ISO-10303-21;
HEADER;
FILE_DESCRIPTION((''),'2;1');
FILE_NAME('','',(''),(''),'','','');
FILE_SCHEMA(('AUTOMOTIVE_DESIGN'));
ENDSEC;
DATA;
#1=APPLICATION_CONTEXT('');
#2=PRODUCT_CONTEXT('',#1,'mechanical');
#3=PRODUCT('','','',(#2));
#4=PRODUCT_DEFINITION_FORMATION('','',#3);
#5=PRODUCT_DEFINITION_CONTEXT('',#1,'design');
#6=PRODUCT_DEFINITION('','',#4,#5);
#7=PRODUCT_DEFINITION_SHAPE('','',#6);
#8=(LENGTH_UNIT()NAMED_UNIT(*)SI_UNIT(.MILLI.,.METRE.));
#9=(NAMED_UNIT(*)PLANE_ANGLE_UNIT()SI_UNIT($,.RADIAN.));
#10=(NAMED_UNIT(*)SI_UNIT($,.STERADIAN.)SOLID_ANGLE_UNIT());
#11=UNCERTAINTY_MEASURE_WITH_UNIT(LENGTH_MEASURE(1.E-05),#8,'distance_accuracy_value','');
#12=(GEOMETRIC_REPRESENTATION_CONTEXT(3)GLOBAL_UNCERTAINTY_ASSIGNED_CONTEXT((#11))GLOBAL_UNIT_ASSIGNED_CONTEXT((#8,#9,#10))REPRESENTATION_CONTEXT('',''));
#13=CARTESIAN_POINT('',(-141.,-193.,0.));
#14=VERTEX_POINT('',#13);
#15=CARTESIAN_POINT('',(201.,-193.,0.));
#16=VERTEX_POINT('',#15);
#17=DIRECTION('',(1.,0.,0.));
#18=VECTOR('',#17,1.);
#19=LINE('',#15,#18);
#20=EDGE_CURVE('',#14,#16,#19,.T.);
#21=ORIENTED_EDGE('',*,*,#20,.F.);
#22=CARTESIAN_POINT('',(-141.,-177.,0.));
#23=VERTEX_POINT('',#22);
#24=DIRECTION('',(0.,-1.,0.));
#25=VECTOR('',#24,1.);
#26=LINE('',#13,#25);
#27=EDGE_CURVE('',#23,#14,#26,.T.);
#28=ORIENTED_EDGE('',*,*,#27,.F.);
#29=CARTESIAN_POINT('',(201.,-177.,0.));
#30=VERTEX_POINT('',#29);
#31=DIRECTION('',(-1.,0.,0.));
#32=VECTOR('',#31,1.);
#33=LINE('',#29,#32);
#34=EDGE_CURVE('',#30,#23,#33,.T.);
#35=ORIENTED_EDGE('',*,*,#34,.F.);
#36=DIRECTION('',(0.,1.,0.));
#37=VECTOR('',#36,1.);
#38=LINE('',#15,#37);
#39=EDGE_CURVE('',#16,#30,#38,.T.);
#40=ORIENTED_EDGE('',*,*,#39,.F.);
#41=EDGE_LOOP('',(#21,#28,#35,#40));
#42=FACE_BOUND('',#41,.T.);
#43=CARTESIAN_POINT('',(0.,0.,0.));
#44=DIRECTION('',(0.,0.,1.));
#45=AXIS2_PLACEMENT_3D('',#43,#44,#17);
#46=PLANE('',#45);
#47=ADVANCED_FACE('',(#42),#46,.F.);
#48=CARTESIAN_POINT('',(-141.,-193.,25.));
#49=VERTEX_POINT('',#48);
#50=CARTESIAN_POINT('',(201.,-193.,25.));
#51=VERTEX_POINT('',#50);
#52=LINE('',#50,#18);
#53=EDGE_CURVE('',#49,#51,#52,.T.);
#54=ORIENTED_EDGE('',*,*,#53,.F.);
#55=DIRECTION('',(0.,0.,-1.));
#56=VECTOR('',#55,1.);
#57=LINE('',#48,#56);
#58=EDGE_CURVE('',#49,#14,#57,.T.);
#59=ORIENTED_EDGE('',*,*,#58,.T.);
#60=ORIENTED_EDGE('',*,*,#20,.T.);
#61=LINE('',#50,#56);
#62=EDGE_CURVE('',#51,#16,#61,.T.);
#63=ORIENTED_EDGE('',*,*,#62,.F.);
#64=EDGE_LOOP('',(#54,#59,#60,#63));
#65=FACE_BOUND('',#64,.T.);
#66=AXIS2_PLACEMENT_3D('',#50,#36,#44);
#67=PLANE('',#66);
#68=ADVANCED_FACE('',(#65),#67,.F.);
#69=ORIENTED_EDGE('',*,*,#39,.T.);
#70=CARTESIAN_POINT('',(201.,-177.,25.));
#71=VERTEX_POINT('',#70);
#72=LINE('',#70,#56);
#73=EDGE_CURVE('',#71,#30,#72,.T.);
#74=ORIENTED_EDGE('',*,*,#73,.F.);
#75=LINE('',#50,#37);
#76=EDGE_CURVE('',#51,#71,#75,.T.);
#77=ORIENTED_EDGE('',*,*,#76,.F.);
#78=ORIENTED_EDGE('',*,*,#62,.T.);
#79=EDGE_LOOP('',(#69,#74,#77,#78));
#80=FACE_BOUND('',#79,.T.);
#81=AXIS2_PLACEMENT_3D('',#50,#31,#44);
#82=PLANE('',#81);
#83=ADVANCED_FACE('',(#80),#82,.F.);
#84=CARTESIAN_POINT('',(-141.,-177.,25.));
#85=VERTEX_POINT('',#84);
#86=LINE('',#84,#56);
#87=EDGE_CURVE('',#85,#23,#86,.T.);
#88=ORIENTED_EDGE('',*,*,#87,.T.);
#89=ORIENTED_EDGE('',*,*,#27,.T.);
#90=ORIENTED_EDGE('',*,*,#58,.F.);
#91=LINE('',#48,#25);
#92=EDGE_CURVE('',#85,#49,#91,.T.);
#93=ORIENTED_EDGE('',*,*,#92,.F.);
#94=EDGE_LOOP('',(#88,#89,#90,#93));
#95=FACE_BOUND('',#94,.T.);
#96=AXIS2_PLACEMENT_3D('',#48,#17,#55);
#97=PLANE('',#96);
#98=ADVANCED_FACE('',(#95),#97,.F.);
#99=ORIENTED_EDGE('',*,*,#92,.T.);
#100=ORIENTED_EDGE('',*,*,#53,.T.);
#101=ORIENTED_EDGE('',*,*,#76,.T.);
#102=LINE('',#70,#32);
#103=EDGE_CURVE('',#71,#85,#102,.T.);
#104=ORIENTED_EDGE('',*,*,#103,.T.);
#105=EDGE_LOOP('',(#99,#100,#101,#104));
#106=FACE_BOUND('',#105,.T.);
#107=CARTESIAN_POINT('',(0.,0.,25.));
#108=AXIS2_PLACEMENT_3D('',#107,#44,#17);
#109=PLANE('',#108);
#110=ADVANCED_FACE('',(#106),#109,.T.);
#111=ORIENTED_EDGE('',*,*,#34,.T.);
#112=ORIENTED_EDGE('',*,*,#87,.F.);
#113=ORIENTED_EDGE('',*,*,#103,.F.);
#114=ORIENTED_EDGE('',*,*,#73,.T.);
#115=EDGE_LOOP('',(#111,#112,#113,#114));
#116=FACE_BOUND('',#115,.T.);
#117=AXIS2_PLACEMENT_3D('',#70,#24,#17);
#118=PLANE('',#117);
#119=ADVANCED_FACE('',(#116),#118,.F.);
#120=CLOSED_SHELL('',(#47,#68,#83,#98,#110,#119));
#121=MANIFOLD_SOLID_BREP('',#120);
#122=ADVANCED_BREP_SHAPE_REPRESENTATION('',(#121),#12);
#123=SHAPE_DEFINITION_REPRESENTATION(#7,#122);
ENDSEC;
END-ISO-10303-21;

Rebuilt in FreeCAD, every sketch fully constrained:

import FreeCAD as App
import Part
import Sketcher


def add_polygon(sketch, points):
    """Adds a closed chain of lines whose ends are joined by coincident constraints."""
    first, n = sketch.GeometryCount, len(points)
    for a, b in zip(points, points[1:] + points[:1]):
        sketch.addGeometry(Part.LineSegment(App.Vector(*a, 0), App.Vector(*b, 0)), False)
    for i in range(n):
        sketch.addConstraint(Sketcher.Constraint("Coincident", first + i, 2, first + (i + 1) % n, 1))

doc = App.newDocument("Part")
body = doc.addObject("PartDesign::Body", "Body")

# Sketch on XY plane
sketch1 = body.newObject("Sketcher::SketchObject", "Sketch")
sketch1.AttachmentSupport = (doc.getObject("XY_Plane"), [""])
sketch1.MapMode = "FlatFace"
add_polygon(sketch1, [(-141, -177), (-141, -193), (201, -193), (201, -177)])  # lines 0-3
sketch1.addConstraint(Sketcher.Constraint("Vertical", 0))
sketch1.addConstraint(Sketcher.Constraint("Horizontal", 1))
sketch1.addConstraint(Sketcher.Constraint("Vertical", 2))
sketch1.addConstraint(Sketcher.Constraint("Horizontal", 3))
sketch1.addConstraint(Sketcher.Constraint("DistanceX", 1, 1, 1, 2, 342.0))
sketch1.addConstraint(Sketcher.Constraint("DistanceY", 0, 2, 0, 1, 16.0))
sketch1.addConstraint(Sketcher.Constraint("DistanceX", 0, 2, -1, 1, 141.0))
sketch1.addConstraint(Sketcher.Constraint("DistanceY", 0, 2, -1, 1, 193.0))
pad1 = body.newObject("PartDesign::Pad", "Pad")
pad1.Profile = sketch1
pad1.Length = 25

doc.recompute()
